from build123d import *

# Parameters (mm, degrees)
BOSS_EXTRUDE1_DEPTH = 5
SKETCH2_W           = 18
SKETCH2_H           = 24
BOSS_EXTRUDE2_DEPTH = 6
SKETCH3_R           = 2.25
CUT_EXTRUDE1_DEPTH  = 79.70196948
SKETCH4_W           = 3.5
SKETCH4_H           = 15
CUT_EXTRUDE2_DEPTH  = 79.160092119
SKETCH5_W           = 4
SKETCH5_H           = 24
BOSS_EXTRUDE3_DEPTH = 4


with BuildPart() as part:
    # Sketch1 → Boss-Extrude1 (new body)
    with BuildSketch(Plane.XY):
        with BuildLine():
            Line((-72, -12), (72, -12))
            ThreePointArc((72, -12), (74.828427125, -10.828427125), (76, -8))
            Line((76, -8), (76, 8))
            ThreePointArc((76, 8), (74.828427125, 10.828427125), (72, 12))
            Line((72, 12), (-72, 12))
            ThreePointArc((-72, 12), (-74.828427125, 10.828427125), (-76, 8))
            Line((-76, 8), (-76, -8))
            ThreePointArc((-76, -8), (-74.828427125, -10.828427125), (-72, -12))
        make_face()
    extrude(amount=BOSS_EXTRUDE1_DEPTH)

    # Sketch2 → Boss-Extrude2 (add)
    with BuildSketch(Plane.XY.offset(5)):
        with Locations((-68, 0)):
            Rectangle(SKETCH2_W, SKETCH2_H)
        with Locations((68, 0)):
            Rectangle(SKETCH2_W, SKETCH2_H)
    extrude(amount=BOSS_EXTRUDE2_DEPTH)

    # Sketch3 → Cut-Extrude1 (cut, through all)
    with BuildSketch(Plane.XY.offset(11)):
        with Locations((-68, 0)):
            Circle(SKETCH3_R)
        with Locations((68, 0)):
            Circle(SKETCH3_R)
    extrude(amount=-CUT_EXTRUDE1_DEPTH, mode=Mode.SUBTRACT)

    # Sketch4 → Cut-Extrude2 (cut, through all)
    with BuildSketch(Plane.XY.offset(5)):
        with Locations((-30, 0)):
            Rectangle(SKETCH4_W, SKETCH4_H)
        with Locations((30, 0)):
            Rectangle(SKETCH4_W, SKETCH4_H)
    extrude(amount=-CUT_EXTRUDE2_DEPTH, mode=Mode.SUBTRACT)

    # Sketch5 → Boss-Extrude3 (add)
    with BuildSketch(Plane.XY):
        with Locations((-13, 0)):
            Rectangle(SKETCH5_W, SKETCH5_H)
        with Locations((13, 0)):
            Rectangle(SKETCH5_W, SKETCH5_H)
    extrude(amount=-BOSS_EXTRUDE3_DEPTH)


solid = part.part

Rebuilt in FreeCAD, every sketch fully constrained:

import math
import FreeCAD as App
import Part
import Sketcher

doc = App.newDocument("Part")
body = doc.addObject("PartDesign::Body", "Body")

sketch1 = body.newObject("Sketcher::SketchObject", "Sketch")
sketch1.AttachmentSupport = (doc.getObject("XY_Plane"), [""])
sketch1.MapMode = "FlatFace"
sketch1.addGeometry(Part.LineSegment(App.Vector(-72, -12, 0), App.Vector(72, -12, 0)), False)
sketch1.addGeometry(Part.ArcOfCircle(Part.Circle(App.Vector(72, -8, 0), App.Vector(0, 0, 1), 4), math.radians(-90), math.radians(0)), False)
sketch1.addGeometry(Part.LineSegment(App.Vector(76, -8, 0), App.Vector(76, 8, 0)), False)
sketch1.addGeometry(Part.ArcOfCircle(Part.Circle(App.Vector(72, 8, 0), App.Vector(0, 0, 1), 4), math.radians(0), math.radians(90)), False)
sketch1.addGeometry(Part.LineSegment(App.Vector(72, 12, 0), App.Vector(-72, 12, 0)), False)
sketch1.addGeometry(Part.ArcOfCircle(Part.Circle(App.Vector(-72, 8, 0), App.Vector(0, 0, 1), 4), math.radians(90), math.radians(180)), False)
sketch1.addGeometry(Part.LineSegment(App.Vector(-76, 8, 0), App.Vector(-76, -8, 0)), False)
sketch1.addGeometry(Part.ArcOfCircle(Part.Circle(App.Vector(-72, -8, 0), App.Vector(0, 0, 1), 4), math.radians(180), math.radians(270)), False)
sketch1.addConstraint(Sketcher.Constraint("Tangent", 0, 2, 1, 1))
sketch1.addConstraint(Sketcher.Constraint("Tangent", 1, 2, 2, 1))
sketch1.addConstraint(Sketcher.Constraint("Tangent", 2, 2, 3, 1))
sketch1.addConstraint(Sketcher.Constraint("Tangent", 3, 2, 4, 1))
sketch1.addConstraint(Sketcher.Constraint("Tangent", 4, 2, 5, 1))
sketch1.addConstraint(Sketcher.Constraint("Tangent", 5, 2, 6, 1))
sketch1.addConstraint(Sketcher.Constraint("Tangent", 6, 2, 7, 1))
sketch1.addConstraint(Sketcher.Constraint("Tangent", 7, 2, 0, 1))
sketch1.addConstraint(Sketcher.Constraint("Horizontal", 0))
sketch1.addConstraint(Sketcher.Constraint("Vertical", 2))
sketch1.addConstraint(Sketcher.Constraint("Horizontal", 4))
sketch1.addConstraint(Sketcher.Constraint("Vertical", 6))
sketch1.addConstraint(Sketcher.Constraint("Equal", 1, 3))
sketch1.addConstraint(Sketcher.Constraint("Equal", 3, 5))
sketch1.addConstraint(Sketcher.Constraint("Equal", 5, 7))
sketch1.addConstraint(Sketcher.Constraint("Symmetric", 1, 3, 5, 3, -1, 1))
sketch1.addConstraint(Sketcher.Constraint("Radius", 1, 4.0))
sketch1.addConstraint(Sketcher.Constraint("DistanceX", 0, 1, 0, 2, 144.0))
sketch1.addConstraint(Sketcher.Constraint("DistanceY", 2, 1, 2, 2, 16.0))
pad1 = body.newObject("PartDesign::Pad", "Pad")
pad1.Profile = sketch1
pad1.Length = 5

sketch2 = body.newObject("Sketcher::SketchObject", "Sketch001")
sketch2.AttachmentSupport = (doc.getObject("XY_Plane"), [""])
sketch2.MapMode = "FlatFace"
sketch2.AttachmentOffset = App.Placement(App.Vector(0, 0, 5), App.Rotation())
sketch2.addGeometry(Part.LineSegment(App.Vector(-77, 12, 0), App.Vector(-77, -12, 0)), False)
sketch2.addGeometry(Part.LineSegment(App.Vector(-77, -12, 0), App.Vector(-59, -12, 0)), False)
sketch2.addGeometry(Part.LineSegment(App.Vector(-59, -12, 0), App.Vector(-59, 12, 0)), False)
sketch2.addGeometry(Part.LineSegment(App.Vector(-59, 12, 0), App.Vector(-77, 12, 0)), False)
sketch2.addGeometry(Part.LineSegment(App.Vector(59, 12, 0), App.Vector(59, -12, 0)), False)
sketch2.addGeometry(Part.LineSegment(App.Vector(59, -12, 0), App.Vector(77, -12, 0)), False)
sketch2.addGeometry(Part.LineSegment(App.Vector(77, -12, 0), App.Vector(77, 12, 0)), False)
sketch2.addGeometry(Part.LineSegment(App.Vector(77, 12, 0), App.Vector(59, 12, 0)), False)
sketch2.addConstraint(Sketcher.Constraint("Coincident", 0, 2, 1, 1))
sketch2.addConstraint(Sketcher.Constraint("Coincident", 1, 2, 2, 1))
sketch2.addConstraint(Sketcher.Constraint("Coincident", 2, 2, 3, 1))
sketch2.addConstraint(Sketcher.Constraint("Coincident", 3, 2, 0, 1))
sketch2.addConstraint(Sketcher.Constraint("Coincident", 4, 2, 5, 1))
sketch2.addConstraint(Sketcher.Constraint("Coincident", 5, 2, 6, 1))
sketch2.addConstraint(Sketcher.Constraint("Coincident", 6, 2, 7, 1))
sketch2.addConstraint(Sketcher.Constraint("Coincident", 7, 2, 4, 1))
sketch2.addConstraint(Sketcher.Constraint("Vertical", 0))
sketch2.addConstraint(Sketcher.Constraint("Horizontal", 1))
sketch2.addConstraint(Sketcher.Constraint("Vertical", 2))
sketch2.addConstraint(Sketcher.Constraint("Horizontal", 3))
sketch2.addConstraint(Sketcher.Constraint("Vertical", 4))
sketch2.addConstraint(Sketcher.Constraint("Horizontal", 5))
sketch2.addConstraint(Sketcher.Constraint("Vertical", 6))
sketch2.addConstraint(Sketcher.Constraint("Horizontal", 7))
sketch2.addConstraint(Sketcher.Constraint("Symmetric", 2, 2, 4, 2, -1, 1))
sketch2.addConstraint(Sketcher.Constraint("Symmetric", 0, 2, 6, 2, -1, 1))
sketch2.addConstraint(Sketcher.Constraint("Horizontal", 1, 2, 4, 2))
sketch2.addConstraint(Sketcher.Constraint("DistanceX", 1, 1, 1, 2, 18.0))
sketch2.addConstraint(Sketcher.Constraint("DistanceY", 0, 2, 0, 1, 24.0))
sketch2.addConstraint(Sketcher.Constraint("DistanceX", 0, 2, -1, 1, 77.0))
pad2 = body.newObject("PartDesign::Pad", "Pad001")
pad2.Profile = sketch2
pad2.Length = 6

sketch3 = body.newObject("Sketcher::SketchObject", "Sketch002")
sketch3.AttachmentSupport = (doc.getObject("XY_Plane"), [""])
sketch3.MapMode = "FlatFace"
sketch3.AttachmentOffset = App.Placement(App.Vector(0, 0, 11), App.Rotation())
sketch3.addGeometry(Part.Circle(App.Vector(-68, 0, 0), App.Vector(0, 0, 1), 2.25), False)
sketch3.addGeometry(Part.Circle(App.Vector(68, 0, 0), App.Vector(0, 0, 1), 2.25), False)
sketch3.addConstraint(Sketcher.Constraint("Equal", 0, 1))
sketch3.addConstraint(Sketcher.Constraint("Symmetric", 0, 3, 1, 3, -1, 1))
sketch3.addConstraint(Sketcher.Constraint("PointOnObject", 0, 3, -1))
sketch3.addConstraint(Sketcher.Constraint("Diameter", 0, 4.5))
sketch3.addConstraint(Sketcher.Constraint("DistanceX", 0, 3, -1, 1, 68.0))
pocket1 = body.newObject("PartDesign::Pocket", "Pocket")
pocket1.Profile = sketch3
pocket1.Type = "ThroughAll"

sketch4 = body.newObject("Sketcher::SketchObject", "Sketch003")
sketch4.AttachmentSupport = (doc.getObject("XY_Plane"), [""])
sketch4.MapMode = "FlatFace"
sketch4.AttachmentOffset = App.Placement(App.Vector(0, 0, 5), App.Rotation())
sketch4.addGeometry(Part.LineSegment(App.Vector(-31.75, 7.5, 0), App.Vector(-31.75, -7.5, 0)), False)
sketch4.addGeometry(Part.LineSegment(App.Vector(-31.75, -7.5, 0), App.Vector(-28.25, -7.5, 0)), False)
sketch4.addGeometry(Part.LineSegment(App.Vector(-28.25, -7.5, 0), App.Vector(-28.25, 7.5, 0)), False)
sketch4.addGeometry(Part.LineSegment(App.Vector(-28.25, 7.5, 0), App.Vector(-31.75, 7.5, 0)), False)
sketch4.addGeometry(Part.LineSegment(App.Vector(28.25, 7.5, 0), App.Vector(28.25, -7.5, 0)), False)
sketch4.addGeometry(Part.LineSegment(App.Vector(28.25, -7.5, 0), App.Vector(31.75, -7.5, 0)), False)
sketch4.addGeometry(Part.LineSegment(App.Vector(31.75, -7.5, 0), App.Vector(31.75, 7.5, 0)), False)
sketch4.addGeometry(Part.LineSegment(App.Vector(31.75, 7.5, 0), App.Vector(28.25, 7.5, 0)), False)
sketch4.addConstraint(Sketcher.Constraint("Coincident", 0, 2, 1, 1))
sketch4.addConstraint(Sketcher.Constraint("Coincident", 1, 2, 2, 1))
sketch4.addConstraint(Sketcher.Constraint("Coincident", 2, 2, 3, 1))
sketch4.addConstraint(Sketcher.Constraint("Coincident", 3, 2, 0, 1))
sketch4.addConstraint(Sketcher.Constraint("Coincident", 4, 2, 5, 1))
sketch4.addConstraint(Sketcher.Constraint("Coincident", 5, 2, 6, 1))
sketch4.addConstraint(Sketcher.Constraint("Coincident", 6, 2, 7, 1))
sketch4.addConstraint(Sketcher.Constraint("Coincident", 7, 2, 4, 1))
sketch4.addConstraint(Sketcher.Constraint("Vertical", 0))
sketch4.addConstraint(Sketcher.Constraint("Horizontal", 1))
sketch4.addConstraint(Sketcher.Constraint("Vertical", 2))
sketch4.addConstraint(Sketcher.Constraint("Horizontal", 3))
sketch4.addConstraint(Sketcher.Constraint("Vertical", 4))
sketch4.addConstraint(Sketcher.Constraint("Horizontal", 5))
sketch4.addConstraint(Sketcher.Constraint("Vertical", 6))
sketch4.addConstraint(Sketcher.Constraint("Horizontal", 7))
sketch4.addConstraint(Sketcher.Constraint("Symmetric", 2, 2, 4, 2, -1, 1))
sketch4.addConstraint(Sketcher.Constraint("Symmetric", 0, 2, 6, 2, -1, 1))
sketch4.addConstraint(Sketcher.Constraint("Horizontal", 1, 2, 4, 2))
sketch4.addConstraint(Sketcher.Constraint("DistanceY", 0, 2, 0, 1, 15.0))
sketch4.addConstraint(Sketcher.Constraint("DistanceX", 1, 1, 1, 2, 3.5))
sketch4.addConstraint(Sketcher.Constraint("DistanceX", 0, 2, 4, 2, 60.0))
pocket2 = body.newObject("PartDesign::Pocket", "Pocket001")
pocket2.Profile = sketch4
pocket2.Type = "ThroughAll"

sketch5 = body.newObject("Sketcher::SketchObject", "Sketch004")
sketch5.AttachmentSupport = (doc.getObject("XY_Plane"), [""])
sketch5.MapMode = "FlatFace"
sketch5.addGeometry(Part.LineSegment(App.Vector(-15, 12, 0), App.Vector(-15, -12, 0)), False)
sketch5.addGeometry(Part.LineSegment(App.Vector(-15, -12, 0), App.Vector(-11, -12, 0)), False)
sketch5.addGeometry(Part.LineSegment(App.Vector(-11, -12, 0), App.Vector(-11, 12, 0)), False)
sketch5.addGeometry(Part.LineSegment(App.Vector(-11, 12, 0), App.Vector(-15, 12, 0)), False)
sketch5.addGeometry(Part.LineSegment(App.Vector(11, 12, 0), App.Vector(11, -12, 0)), False)
sketch5.addGeometry(Part.LineSegment(App.Vector(11, -12, 0), App.Vector(15, -12, 0)), False)
sketch5.addGeometry(Part.LineSegment(App.Vector(15, -12, 0), App.Vector(15, 12, 0)), False)
sketch5.addGeometry(Part.LineSegment(App.Vector(15, 12, 0), App.Vector(11, 12, 0)), False)
sketch5.addConstraint(Sketcher.Constraint("Coincident", 0, 2, 1, 1))
sketch5.addConstraint(Sketcher.Constraint("Coincident", 1, 2, 2, 1))
sketch5.addConstraint(Sketcher.Constraint("Coincident", 2, 2, 3, 1))
sketch5.addConstraint(Sketcher.Constraint("Coincident", 3, 2, 0, 1))
sketch5.addConstraint(Sketcher.Constraint("Coincident", 4, 2, 5, 1))
sketch5.addConstraint(Sketcher.Constraint("Coincident", 5, 2, 6, 1))
sketch5.addConstraint(Sketcher.Constraint("Coincident", 6, 2, 7, 1))
sketch5.addConstraint(Sketcher.Constraint("Coincident", 7, 2, 4, 1))
sketch5.addConstraint(Sketcher.Constraint("Vertical", 0))
sketch5.addConstraint(Sketcher.Constraint("Horizontal", 1))
sketch5.addConstraint(Sketcher.Constraint("Vertical", 2))
sketch5.addConstraint(Sketcher.Constraint("Horizontal", 3))
sketch5.addConstraint(Sketcher.Constraint("Vertical", 4))
sketch5.addConstraint(Sketcher.Constraint("Horizontal", 5))
sketch5.addConstraint(Sketcher.Constraint("Vertical", 6))
sketch5.addConstraint(Sketcher.Constraint("Horizontal", 7))
sketch5.addConstraint(Sketcher.Constraint("Symmetric", 2, 2, 4, 2, -1, 1))
sketch5.addConstraint(Sketcher.Constraint("Symmetric", 0, 2, 6, 2, -1, 1))
sketch5.addConstraint(Sketcher.Constraint("Horizontal", 1, 2, 4, 2))
sketch5.addConstraint(Sketcher.Constraint("DistanceX", 1, 1, 1, 2, 4.0))
sketch5.addConstraint(Sketcher.Constraint("DistanceY", 0, 2, 0, 1, 24.0))
sketch5.addConstraint(Sketcher.Constraint("DistanceX", 0, 2, -1, 1, 15.0))
pad3 = body.newObject("PartDesign::Pad", "Pad002")
pad3.Profile = sketch5
pad3.Length = 4
pad3.Reversed = True

doc.recompute()
